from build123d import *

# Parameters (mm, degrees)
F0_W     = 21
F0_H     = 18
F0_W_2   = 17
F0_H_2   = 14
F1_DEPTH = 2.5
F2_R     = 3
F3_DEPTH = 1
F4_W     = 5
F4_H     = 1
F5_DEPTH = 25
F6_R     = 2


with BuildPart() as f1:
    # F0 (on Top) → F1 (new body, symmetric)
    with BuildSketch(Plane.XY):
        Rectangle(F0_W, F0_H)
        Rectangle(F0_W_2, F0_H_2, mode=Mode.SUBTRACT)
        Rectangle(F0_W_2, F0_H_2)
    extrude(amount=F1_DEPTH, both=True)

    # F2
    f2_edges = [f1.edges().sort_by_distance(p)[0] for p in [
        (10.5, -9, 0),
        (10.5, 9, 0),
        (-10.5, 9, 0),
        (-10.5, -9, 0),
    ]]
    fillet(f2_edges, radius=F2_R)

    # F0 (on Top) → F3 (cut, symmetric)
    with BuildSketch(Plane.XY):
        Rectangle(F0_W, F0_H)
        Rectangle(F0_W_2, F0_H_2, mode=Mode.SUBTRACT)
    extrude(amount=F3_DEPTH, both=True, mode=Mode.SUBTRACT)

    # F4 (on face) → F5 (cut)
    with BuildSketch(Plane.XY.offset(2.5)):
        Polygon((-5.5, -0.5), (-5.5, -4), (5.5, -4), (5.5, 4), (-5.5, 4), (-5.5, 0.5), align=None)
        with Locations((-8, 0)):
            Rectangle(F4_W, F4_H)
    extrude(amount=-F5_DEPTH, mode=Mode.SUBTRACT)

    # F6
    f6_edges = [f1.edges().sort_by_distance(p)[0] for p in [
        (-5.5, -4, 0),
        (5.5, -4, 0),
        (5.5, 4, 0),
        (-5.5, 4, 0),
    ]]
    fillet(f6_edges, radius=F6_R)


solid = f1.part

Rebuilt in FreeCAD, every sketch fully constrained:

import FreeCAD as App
import Part
import Sketcher
Q = App.Units.Quantity


def edges_at(feature, points):
    """Names of the edges that pass closest to the given points."""
    edges = feature.Shape.Edges
    near = lambda p: min(range(len(edges)), key=lambda i: edges[i].distToShape(Part.Vertex(*p))[0])
    return sorted({f"Edge{near(p) + 1}" for p in points})


def add_polygon(sketch, points):
    """Adds a closed chain of lines whose ends are joined by coincident constraints."""
    first, n = sketch.GeometryCount, len(points)
    for a, b in zip(points, points[1:] + points[:1]):
        sketch.addGeometry(Part.LineSegment(App.Vector(*a, 0), App.Vector(*b, 0)), False)
    for i in range(n):
        sketch.addConstraint(Sketcher.Constraint("Coincident", first + i, 2, first + (i + 1) % n, 1))

doc = App.newDocument("Part")
body = doc.addObject("PartDesign::Body", "Body")

sketch1 = body.newObject("Sketcher::SketchObject", "Sketch")
sketch1.AttachmentSupport = (doc.getObject("XY_Plane"), [""])
sketch1.MapMode = "FlatFace"
add_polygon(sketch1, [(-10, 9), (-10, -9), (10, -9), (10, 9)])
sketch1.addConstraint([
    Sketcher.Constraint("Vertical", 0),
    Sketcher.Constraint("Horizontal", 1),
    Sketcher.Constraint("Vertical", 2),
    Sketcher.Constraint("Horizontal", 3),
    Sketcher.Constraint("Symmetric", 0, 2, 2, 2, -1, 1),
    Sketcher.Constraint("DistanceX", 1, 1, 1, 2, Q("21 mm")),
    Sketcher.Constraint("DistanceY", 0, 2, 0, 1, Q("18 mm")),
])
pad1 = body.newObject("PartDesign::Pad", "Pad")
pad1.Profile = sketch1
pad1.Length = 5
pad1.Midplane = True
doc.recompute()

fillet = body.newObject("PartDesign::Fillet", "Fillet")
fillet.Base = (pad1, edges_at(pad1, [
    (10.5, -9, 0),
    (10.5, 9, 0),
    (-10.5, 9, 0),
    (-10.5, -9, 0),
]))
fillet.Radius = 3

sketch2 = body.newObject("Sketcher::SketchObject", "Sketch001")
sketch2.AttachmentSupport = (doc.getObject("XY_Plane"), [""])
sketch2.MapMode = "FlatFace"
add_polygon(sketch2, [(-10, 9), (-10, -9), (10, -9), (10, 9)])
add_polygon(sketch2, [(8, -7), (-8, -7), (-8, 7), (8, 7)])
sketch2.addConstraint([
    Sketcher.Constraint("Vertical", 0),
    Sketcher.Constraint("Horizontal", 1),
    Sketcher.Constraint("Vertical", 2),
    Sketcher.Constraint("Horizontal", 3),
    Sketcher.Constraint("Horizontal", 4),
    Sketcher.Constraint("Vertical", 5),
    Sketcher.Constraint("Horizontal", 6),
    Sketcher.Constraint("Vertical", 7),
    Sketcher.Constraint("Symmetric", 0, 2, 2, 2, -1, 1),
    Sketcher.Constraint("Symmetric", 4, 2, 6, 2, -1, 1),
    Sketcher.Constraint("DistanceX", 1, 1, 1, 2, Q("21 mm")),
    Sketcher.Constraint("DistanceX", 4, 2, 4, 1, Q("17 mm")),
    Sketcher.Constraint("DistanceY", 0, 2, 0, 1, Q("18 mm")),
    Sketcher.Constraint("DistanceY", 5, 1, 5, 2, Q("14 mm")),
])
pocket1 = body.newObject("PartDesign::Pocket", "Pocket")
pocket1.Profile = sketch2
pocket1.Length = 2
pocket1.Midplane = True

sketch3 = body.newObject("Sketcher::SketchObject", "Sketch002")
sketch3.AttachmentSupport = (doc.getObject("XY_Plane"), [""])
sketch3.MapMode = "FlatFace"
sketch3.AttachmentOffset = App.Placement(App.Vector(0, 0, 2.5), App.Rotation())
add_polygon(sketch3, [(-5.5, -4), (5.5, -4), (5.5, 4), (-5.5, 4), (-5.5, 0.5), (-10.5, 0.5), (-10.5, -0.5), (-5.5, -0.5)])
sketch3.addConstraint([
    Sketcher.Constraint("Horizontal", 0),
    Sketcher.Constraint("Vertical", 1),
    Sketcher.Constraint("Horizontal", 2),
    Sketcher.Constraint("Vertical", 3),
    Sketcher.Constraint("Horizontal", 4),
    Sketcher.Constraint("Vertical", 5),
    Sketcher.Constraint("Horizontal", 6),
    Sketcher.Constraint("Vertical", 7),
    Sketcher.Constraint("Symmetric", 0, 2, 2, 2, -1, 1),
    Sketcher.Constraint("Symmetric", 3, 2, 6, 2, -1),
    Sketcher.Constraint("DistanceX", 0, 1, 0, 2, Q("11 mm")),
    Sketcher.Constraint("DistanceX", 4, 2, 4, 1, Q("5 mm")),
    Sketcher.Constraint("DistanceY", 1, 1, 1, 2, Q("8 mm")),
    Sketcher.Constraint("DistanceY", 5, 2, 5, 1, Q("1 mm")),
])
pocket2 = body.newObject("PartDesign::Pocket", "Pocket001")
pocket2.Profile = sketch3
pocket2.Length = 25
doc.recompute()

fillet2 = body.newObject("PartDesign::Fillet", "Fillet001")
fillet2.Base = (pocket2, edges_at(pocket2, [
    (-5.5, -4, 0),
    (5.5, -4, 0),
    (5.5, 4, 0),
    (-5.5, 4, 0),
]))
fillet2.Radius = 2

doc.recompute()
